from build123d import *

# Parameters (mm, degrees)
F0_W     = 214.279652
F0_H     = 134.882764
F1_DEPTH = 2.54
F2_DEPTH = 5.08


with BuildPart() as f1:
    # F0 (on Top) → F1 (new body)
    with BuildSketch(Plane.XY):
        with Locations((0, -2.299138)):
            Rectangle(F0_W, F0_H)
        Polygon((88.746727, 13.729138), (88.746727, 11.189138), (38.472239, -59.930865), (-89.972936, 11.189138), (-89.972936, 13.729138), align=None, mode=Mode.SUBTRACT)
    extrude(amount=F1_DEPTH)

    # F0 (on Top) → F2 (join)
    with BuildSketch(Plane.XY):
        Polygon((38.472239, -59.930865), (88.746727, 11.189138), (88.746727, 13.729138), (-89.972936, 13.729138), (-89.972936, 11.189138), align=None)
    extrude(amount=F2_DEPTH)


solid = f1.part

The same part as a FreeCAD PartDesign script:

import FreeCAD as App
import Part
import Sketcher

V = App.Vector
Q = App.Units.Quantity


def add_polygon(sketch, points):
    """Adds a closed chain of lines whose ends are joined by coincident constraints."""
    first, n = sketch.GeometryCount, len(points)
    for a, b in zip(points, points[1:] + points[:1]):
        sketch.addGeometry(Part.LineSegment(App.Vector(*a, 0), App.Vector(*b, 0)), False)
    for i in range(n):
        sketch.addConstraint(Sketcher.Constraint("Coincident", first + i, 2, first + (i + 1) % n, 1))

doc = App.newDocument("Part")
body = doc.addObject("PartDesign::Body", "Body")

# Sketch on XY plane
sketch1 = body.newObject("Sketcher::SketchObject", "Sketch")
sketch1.AttachmentSupport = (doc.getObject("XY_Plane"), [""])
sketch1.MapMode = "FlatFace"
add_polygon(sketch1, [(-107.1, 65.1), (-107.1, -69.7), (107.1, -69.7), (107.1, 65.1)])  # lines 0-3
add_polygon(sketch1, [(-90, 13.7), (88.7, 13.7), (88.7, 11.2), (38.5, -59.9), (-90, 11.2)])  # lines 4-8
sketch1.addConstraint([
    Sketcher.Constraint("Vertical", 0),
    Sketcher.Constraint("Horizontal", 1),
    Sketcher.Constraint("Vertical", 2),
    Sketcher.Constraint("Horizontal", 3),
    Sketcher.Constraint("Horizontal", 4),
    Sketcher.Constraint("Vertical", 5),
    Sketcher.Constraint("Vertical", 8),
    Sketcher.Constraint("Horizontal", 5, 2, 7, 2),
    Sketcher.Constraint("DistanceY", 5, 2, 5, 1, Q("0.1 in")),
    Sketcher.Constraint("DistanceY", 6, 2, 5, 2, Q("2.8000001 in")),
    Sketcher.Constraint("DistanceX", 1, 1, 1, 2, Q("214.279652 mm")),
    Sketcher.Constraint("DistanceX", 4, 2, 2, 2, Q("18.393099 mm")),
    Sketcher.Constraint("Distance", 6, Q("87.095229 mm")),
    Sketcher.Constraint("Distance", 7, Q("146.820359 mm")),
    Sketcher.Constraint("DistanceY", 0, 2, 0, 1, Q("134.882764 mm")),
    Sketcher.Constraint("DistanceY", 0, 2, -1, 1, Q("69.74052 mm")),
    Sketcher.Constraint("DistanceY", -1, 1, 4, 2, Q("13.729138 mm")),
    Sketcher.Constraint("DistanceX", -1, 1, 6, 2, Q("38.472239 mm")),
])
pad1 = body.newObject("PartDesign::Pad", "Pad")
pad1.Profile = sketch1
pad1.Length = Q("0.1 in")

# Sketch on XY plane
sketch2 = body.newObject("Sketcher::SketchObject", "Sketch001")
sketch2.AttachmentSupport = (doc.getObject("XY_Plane"), [""])
sketch2.MapMode = "FlatFace"
add_polygon(sketch2, [(38.5, -59.9), (88.7, 11.2), (88.7, 13.7), (-90, 13.7), (-90, 11.2)])  # lines 0-4
sketch2.addConstraint([
    Sketcher.Constraint("Vertical", 1),
    Sketcher.Constraint("Horizontal", 2),
    Sketcher.Constraint("Vertical", 3),
    Sketcher.Constraint("Horizontal", 0, 2, 3, 2),
    Sketcher.Constraint("DistanceY", 1, 1, 1, 2, Q("0.1 in")),
    Sketcher.Constraint("DistanceY", 4, 2, 0, 2, Q("2.8000001 in")),
    Sketcher.Constraint("Distance", 0, Q("87.095229 mm")),
    Sketcher.Constraint("Distance", 4, Q("146.820359 mm")),
    Sketcher.Constraint("DistanceY", -1, 1, 1, 2, Q("13.729138 mm")),
    Sketcher.Constraint("DistanceX", -1, 1, 4, 2, Q("38.472239 mm")),
])
pad2 = body.newObject("PartDesign::Pad", "Pad001")
pad2.Profile = sketch2
pad2.Length = Q("0.2 in")

doc.recompute()
